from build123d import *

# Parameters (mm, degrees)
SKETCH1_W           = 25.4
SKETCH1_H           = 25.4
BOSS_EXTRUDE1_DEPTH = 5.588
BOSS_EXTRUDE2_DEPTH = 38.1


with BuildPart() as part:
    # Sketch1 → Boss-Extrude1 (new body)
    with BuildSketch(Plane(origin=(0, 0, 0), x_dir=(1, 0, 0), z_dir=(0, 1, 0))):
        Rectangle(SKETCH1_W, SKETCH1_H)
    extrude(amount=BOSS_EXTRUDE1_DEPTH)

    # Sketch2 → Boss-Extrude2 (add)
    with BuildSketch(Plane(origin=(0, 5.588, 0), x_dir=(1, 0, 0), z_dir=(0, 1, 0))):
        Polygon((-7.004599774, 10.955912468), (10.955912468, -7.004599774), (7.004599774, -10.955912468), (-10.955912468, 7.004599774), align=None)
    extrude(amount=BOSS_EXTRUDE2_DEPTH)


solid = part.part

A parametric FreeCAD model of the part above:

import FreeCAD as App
import Part
import Sketcher
from FreeCAD import Vector
Q = App.Units.Quantity


def add_polygon(sketch, points):
    """Adds a closed chain of lines whose ends are joined by coincident constraints."""
    first, n = sketch.GeometryCount, len(points)
    for a, b in zip(points, points[1:] + points[:1]):
        sketch.addGeometry(Part.LineSegment(App.Vector(*a, 0), App.Vector(*b, 0)), False)
    for i in range(n):
        sketch.addConstraint(Sketcher.Constraint("Coincident", first + i, 2, first + (i + 1) % n, 1))

doc = App.newDocument("Part")
params = doc.addObject("Spreadsheet::Sheet", "Params")
for row, (alias, value) in enumerate([
    ("sketch1_width", "1 in"),
    ("pad1_length", "0.22 in"),
    ("sketch2_length", "1 in"),
    ("sketch2_length2", "0.22 in"),
    ("pad2_length", "1.5 in"),
], start=1):
    params.set(f"A{row}", alias)
    params.set(f"B{row}", "=" + value)
    params.setAlias(f"B{row}", alias)

body = doc.addObject("PartDesign::Body", "Body")

# Sketch on XZ plane
sketch1 = doc.addObject("Sketcher::SketchObject", "Sketch")
body.addObject(sketch1)
sketch1.AttachmentSupport = (doc.XZ_Plane, [""])
sketch1.MapMode = "FlatFace"
add_polygon(sketch1, [(-12.7, -12.7), (-12.7, 12.7), (12.7, 12.7), (12.7, -12.7)])  # lines 0-3
sketch1.addConstraint(Sketcher.Constraint("Vertical", 0))
sketch1.addConstraint(Sketcher.Constraint("Horizontal", 1))
sketch1.addConstraint(Sketcher.Constraint("Vertical", 2))
sketch1.addConstraint(Sketcher.Constraint("Horizontal", 3))
sketch1.addConstraint(Sketcher.Constraint("Symmetric", 0, 2, 2, 2, -1, 1))
sketch1.addConstraint(Sketcher.Constraint("Equal", 3, 0))
sketch1.addConstraint(Sketcher.Constraint("DistanceX", 1, 1, 1, 2, Q("1 in")))
sketch1.setExpression("Constraints[10]", "Params.sketch1_width")
pad1 = doc.addObject("PartDesign::Pad", "Pad")
body.addObject(pad1)
pad1.Profile = sketch1
pad1.setExpression("Length", "Params.pad1_length")
pad1.Reversed = True

# Sketch on XZ plane
sketch2 = doc.addObject("Sketcher::SketchObject", "Sketch001")
body.addObject(sketch2)
sketch2.AttachmentSupport = (doc.XZ_Plane, [""])
sketch2.MapMode = "FlatFace"
sketch2.AttachmentOffset = App.Placement(Vector(0, 0, -0.22 * 25.4), App.Rotation())
add_polygon(sketch2, [(10.955912, 7.0046), (-7.0046, -10.955912), (-10.955912, -7.0046), (7.0046, 10.955912)])  # lines 0-3
sketch2.addConstraint(Sketcher.Constraint("Symmetric", 0, 2, 2, 2, -1, 1))
sketch2.addConstraint(Sketcher.Constraint("Symmetric", 1, 2, 3, 2, -1, 1))
sketch2.addConstraint(Sketcher.Constraint("Perpendicular", 0, 1))
sketch2.addConstraint(Sketcher.Constraint("Distance", 0, Q("1 in")))
sketch2.addConstraint(Sketcher.Constraint("Angle", 0, Q("-135 deg")))
sketch2.addConstraint(Sketcher.Constraint("Distance", 1, Q("0.22 in")))
sketch2.setExpression("Constraints[7]", "Params.sketch2_length")
sketch2.setExpression("Constraints[9]", "Params.sketch2_length2")
pad2 = doc.addObject("PartDesign::Pad", "Pad001")
body.addObject(pad2)
pad2.Profile = sketch2
pad2.setExpression("Length", "Params.pad2_length")
pad2.Reversed = True

doc.recompute()
